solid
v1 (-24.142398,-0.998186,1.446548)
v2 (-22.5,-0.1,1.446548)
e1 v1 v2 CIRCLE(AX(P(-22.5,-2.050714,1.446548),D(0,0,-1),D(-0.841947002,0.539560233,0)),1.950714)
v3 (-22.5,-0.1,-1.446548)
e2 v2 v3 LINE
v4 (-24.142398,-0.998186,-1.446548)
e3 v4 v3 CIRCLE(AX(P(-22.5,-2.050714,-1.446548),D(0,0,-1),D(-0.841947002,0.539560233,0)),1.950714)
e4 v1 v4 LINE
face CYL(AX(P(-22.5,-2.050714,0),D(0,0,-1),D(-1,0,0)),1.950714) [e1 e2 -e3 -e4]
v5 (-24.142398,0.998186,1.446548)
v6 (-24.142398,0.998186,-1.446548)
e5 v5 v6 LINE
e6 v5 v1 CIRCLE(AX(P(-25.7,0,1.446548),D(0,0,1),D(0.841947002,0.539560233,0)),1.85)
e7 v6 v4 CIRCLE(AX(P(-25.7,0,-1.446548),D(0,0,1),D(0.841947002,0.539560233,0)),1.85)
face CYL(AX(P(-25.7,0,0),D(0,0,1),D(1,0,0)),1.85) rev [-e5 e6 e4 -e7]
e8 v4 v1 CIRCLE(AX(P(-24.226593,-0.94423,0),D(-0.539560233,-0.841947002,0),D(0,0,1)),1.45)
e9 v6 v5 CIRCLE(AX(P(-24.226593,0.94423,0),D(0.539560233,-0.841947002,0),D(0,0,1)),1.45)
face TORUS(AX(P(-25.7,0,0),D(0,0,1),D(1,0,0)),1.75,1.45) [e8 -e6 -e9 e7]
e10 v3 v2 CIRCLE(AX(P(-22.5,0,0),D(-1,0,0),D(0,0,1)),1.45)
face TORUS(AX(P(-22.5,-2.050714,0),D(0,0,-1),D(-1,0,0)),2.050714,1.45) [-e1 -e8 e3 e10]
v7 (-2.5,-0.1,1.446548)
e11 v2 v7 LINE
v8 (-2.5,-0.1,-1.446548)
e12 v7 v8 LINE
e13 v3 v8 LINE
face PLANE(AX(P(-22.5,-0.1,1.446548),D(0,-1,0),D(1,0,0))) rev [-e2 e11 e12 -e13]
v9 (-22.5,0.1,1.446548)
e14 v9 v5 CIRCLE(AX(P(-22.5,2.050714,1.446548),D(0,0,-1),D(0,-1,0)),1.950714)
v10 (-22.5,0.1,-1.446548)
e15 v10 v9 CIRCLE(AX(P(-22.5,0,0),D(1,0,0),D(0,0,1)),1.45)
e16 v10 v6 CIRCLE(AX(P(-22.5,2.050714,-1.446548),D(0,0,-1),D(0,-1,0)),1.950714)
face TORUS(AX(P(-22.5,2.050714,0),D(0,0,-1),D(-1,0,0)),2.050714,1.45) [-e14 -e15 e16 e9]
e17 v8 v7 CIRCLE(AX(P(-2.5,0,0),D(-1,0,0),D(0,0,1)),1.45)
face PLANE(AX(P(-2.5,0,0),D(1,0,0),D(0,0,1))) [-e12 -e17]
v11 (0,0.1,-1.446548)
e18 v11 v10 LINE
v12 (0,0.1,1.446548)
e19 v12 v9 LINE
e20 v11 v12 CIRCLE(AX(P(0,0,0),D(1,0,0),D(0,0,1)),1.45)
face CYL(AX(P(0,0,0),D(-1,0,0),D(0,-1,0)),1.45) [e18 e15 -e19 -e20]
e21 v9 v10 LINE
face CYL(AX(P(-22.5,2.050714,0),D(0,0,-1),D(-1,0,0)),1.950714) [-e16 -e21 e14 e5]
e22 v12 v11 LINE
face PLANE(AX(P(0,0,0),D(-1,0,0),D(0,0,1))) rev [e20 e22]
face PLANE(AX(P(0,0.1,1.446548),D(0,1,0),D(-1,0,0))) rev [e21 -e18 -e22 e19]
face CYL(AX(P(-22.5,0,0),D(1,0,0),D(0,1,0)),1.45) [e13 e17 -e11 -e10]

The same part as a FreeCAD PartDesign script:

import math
import FreeCAD as App
import Part
import Sketcher
Q = App.Units.Quantity

doc = App.newDocument("Part")
params = doc.addObject("Spreadsheet::Sheet", "Params")
for row, (alias, value) in enumerate([
    ("sketch1_radius", "1.45 mm"),
    ("sketch2_radius", "3.2 mm"),
    ("sketch2_width", "20 mm"),
    ("sketch2_width2", "22.5 mm"),
], start=1):
    params.set(f"A{row}", alias)
    params.set(f"B{row}", "=" + value)
    params.setAlias(f"B{row}", alias)

body = doc.addObject("PartDesign::Body", "Body")

sketch1 = doc.addObject("Sketcher::SketchObject", "Sketch")
body.addObject(sketch1)
sketch1.AttachmentSupport = (doc.YZ_Plane, [""])
sketch1.MapMode = "FlatFace"
sketch1.addGeometry([
    Part.LineSegment(App.Vector(0.1, 1.4, 0), App.Vector(0.1, -1.4, 0)),
    Part.ArcOfCircle(Part.Circle(App.Vector(0, 0, 0), App.Vector(0, 0, 1), 1.4), math.radians(-86), math.radians(86)),
], False)
sketch1.addConstraint([
    Sketcher.Constraint("Coincident", 0, 1, 1, 2),
    Sketcher.Constraint("Coincident", 1, 1, 0, 2),
    Sketcher.Constraint("Vertical", 0),
    Sketcher.Constraint("Coincident", 1, 3, -1, 1),
    Sketcher.Constraint("Radius", 1, Q("1.45 mm")),
    Sketcher.Constraint("DistanceX", -1, 1, 0, 1, Q("0.1 mm")),
])
sketch1.setExpression("Constraints[4]", "Params.sketch1_radius")

sketch2 = doc.addObject("Sketcher::SketchObject", "Sketch001")
body.addObject(sketch2)
sketch2.AttachmentSupport = (doc.XY_Plane, [""])
sketch2.MapMode = "FlatFace"
sketch2.addGeometry([
    Part.LineSegment(App.Vector(0, 1.4, 0), App.Vector(-22.5, 1.4, 0)),
    Part.ArcOfCircle(Part.Circle(App.Vector(-22.5, 2.1, 0), App.Vector(0, 0, 1), 0.6), math.radians(-147), math.radians(-90)),
    Part.ArcOfCircle(Part.Circle(App.Vector(-25.7, 0, 0), App.Vector(0, 0, 1), 3.2), math.radians(33), math.radians(327)),
    Part.ArcOfCircle(Part.Circle(App.Vector(-22.5, -2.1, 0), App.Vector(0, 0, 1), 0.6), math.radians(90), math.radians(147)),
    Part.LineSegment(App.Vector(-22.5, -1.4, 0), App.Vector(-2.5, -1.4, 0)),
], False)
sketch2.addConstraint([
    Sketcher.Constraint("Tangent", 0, 2, 1, 2),
    Sketcher.Constraint("Tangent", 1, 1, 2, 1),
    Sketcher.Constraint("Tangent", 2, 2, 3, 2),
    Sketcher.Constraint("Tangent", 3, 1, 4, 1),
    Sketcher.Constraint("Horizontal", 0),
    Sketcher.Constraint("Horizontal", 4),
    Sketcher.Constraint("Equal", 1, 3),
    Sketcher.Constraint("Symmetric", 1, 3, 3, 3, -1),
    Sketcher.Constraint("PointOnObject", 0, 1, -2),
    Sketcher.Constraint("Radius", 2, Q("3.2 mm")),
    Sketcher.Constraint("DistanceX", 4, 1, 4, 2, Q("20 mm")),
    Sketcher.Constraint("DistanceX", 0, 2, 0, 1, Q("22.5 mm")),
    Sketcher.Constraint("DistanceX", 2, 3, -1, 1, Q("25.7 mm")),
    Sketcher.Constraint("DistanceY", 3, 1, 0, 2, Q("2.9 mm")),
])
sketch2.setExpression("Constraints[9]", "Params.sketch2_radius")
sketch2.setExpression("Constraints[10]", "Params.sketch2_width")
sketch2.setExpression("Constraints[11]", "Params.sketch2_width2")
doc.recompute()

additivepipe = doc.addObject("PartDesign::AdditivePipe", "AdditivePipe")
body.addObject(additivepipe)
additivepipe.Profile = sketch1
additivepipe.Spine = (sketch2, ["Edge1", "Edge2", "Edge3", "Edge4", "Edge5"])

doc.recompute()
